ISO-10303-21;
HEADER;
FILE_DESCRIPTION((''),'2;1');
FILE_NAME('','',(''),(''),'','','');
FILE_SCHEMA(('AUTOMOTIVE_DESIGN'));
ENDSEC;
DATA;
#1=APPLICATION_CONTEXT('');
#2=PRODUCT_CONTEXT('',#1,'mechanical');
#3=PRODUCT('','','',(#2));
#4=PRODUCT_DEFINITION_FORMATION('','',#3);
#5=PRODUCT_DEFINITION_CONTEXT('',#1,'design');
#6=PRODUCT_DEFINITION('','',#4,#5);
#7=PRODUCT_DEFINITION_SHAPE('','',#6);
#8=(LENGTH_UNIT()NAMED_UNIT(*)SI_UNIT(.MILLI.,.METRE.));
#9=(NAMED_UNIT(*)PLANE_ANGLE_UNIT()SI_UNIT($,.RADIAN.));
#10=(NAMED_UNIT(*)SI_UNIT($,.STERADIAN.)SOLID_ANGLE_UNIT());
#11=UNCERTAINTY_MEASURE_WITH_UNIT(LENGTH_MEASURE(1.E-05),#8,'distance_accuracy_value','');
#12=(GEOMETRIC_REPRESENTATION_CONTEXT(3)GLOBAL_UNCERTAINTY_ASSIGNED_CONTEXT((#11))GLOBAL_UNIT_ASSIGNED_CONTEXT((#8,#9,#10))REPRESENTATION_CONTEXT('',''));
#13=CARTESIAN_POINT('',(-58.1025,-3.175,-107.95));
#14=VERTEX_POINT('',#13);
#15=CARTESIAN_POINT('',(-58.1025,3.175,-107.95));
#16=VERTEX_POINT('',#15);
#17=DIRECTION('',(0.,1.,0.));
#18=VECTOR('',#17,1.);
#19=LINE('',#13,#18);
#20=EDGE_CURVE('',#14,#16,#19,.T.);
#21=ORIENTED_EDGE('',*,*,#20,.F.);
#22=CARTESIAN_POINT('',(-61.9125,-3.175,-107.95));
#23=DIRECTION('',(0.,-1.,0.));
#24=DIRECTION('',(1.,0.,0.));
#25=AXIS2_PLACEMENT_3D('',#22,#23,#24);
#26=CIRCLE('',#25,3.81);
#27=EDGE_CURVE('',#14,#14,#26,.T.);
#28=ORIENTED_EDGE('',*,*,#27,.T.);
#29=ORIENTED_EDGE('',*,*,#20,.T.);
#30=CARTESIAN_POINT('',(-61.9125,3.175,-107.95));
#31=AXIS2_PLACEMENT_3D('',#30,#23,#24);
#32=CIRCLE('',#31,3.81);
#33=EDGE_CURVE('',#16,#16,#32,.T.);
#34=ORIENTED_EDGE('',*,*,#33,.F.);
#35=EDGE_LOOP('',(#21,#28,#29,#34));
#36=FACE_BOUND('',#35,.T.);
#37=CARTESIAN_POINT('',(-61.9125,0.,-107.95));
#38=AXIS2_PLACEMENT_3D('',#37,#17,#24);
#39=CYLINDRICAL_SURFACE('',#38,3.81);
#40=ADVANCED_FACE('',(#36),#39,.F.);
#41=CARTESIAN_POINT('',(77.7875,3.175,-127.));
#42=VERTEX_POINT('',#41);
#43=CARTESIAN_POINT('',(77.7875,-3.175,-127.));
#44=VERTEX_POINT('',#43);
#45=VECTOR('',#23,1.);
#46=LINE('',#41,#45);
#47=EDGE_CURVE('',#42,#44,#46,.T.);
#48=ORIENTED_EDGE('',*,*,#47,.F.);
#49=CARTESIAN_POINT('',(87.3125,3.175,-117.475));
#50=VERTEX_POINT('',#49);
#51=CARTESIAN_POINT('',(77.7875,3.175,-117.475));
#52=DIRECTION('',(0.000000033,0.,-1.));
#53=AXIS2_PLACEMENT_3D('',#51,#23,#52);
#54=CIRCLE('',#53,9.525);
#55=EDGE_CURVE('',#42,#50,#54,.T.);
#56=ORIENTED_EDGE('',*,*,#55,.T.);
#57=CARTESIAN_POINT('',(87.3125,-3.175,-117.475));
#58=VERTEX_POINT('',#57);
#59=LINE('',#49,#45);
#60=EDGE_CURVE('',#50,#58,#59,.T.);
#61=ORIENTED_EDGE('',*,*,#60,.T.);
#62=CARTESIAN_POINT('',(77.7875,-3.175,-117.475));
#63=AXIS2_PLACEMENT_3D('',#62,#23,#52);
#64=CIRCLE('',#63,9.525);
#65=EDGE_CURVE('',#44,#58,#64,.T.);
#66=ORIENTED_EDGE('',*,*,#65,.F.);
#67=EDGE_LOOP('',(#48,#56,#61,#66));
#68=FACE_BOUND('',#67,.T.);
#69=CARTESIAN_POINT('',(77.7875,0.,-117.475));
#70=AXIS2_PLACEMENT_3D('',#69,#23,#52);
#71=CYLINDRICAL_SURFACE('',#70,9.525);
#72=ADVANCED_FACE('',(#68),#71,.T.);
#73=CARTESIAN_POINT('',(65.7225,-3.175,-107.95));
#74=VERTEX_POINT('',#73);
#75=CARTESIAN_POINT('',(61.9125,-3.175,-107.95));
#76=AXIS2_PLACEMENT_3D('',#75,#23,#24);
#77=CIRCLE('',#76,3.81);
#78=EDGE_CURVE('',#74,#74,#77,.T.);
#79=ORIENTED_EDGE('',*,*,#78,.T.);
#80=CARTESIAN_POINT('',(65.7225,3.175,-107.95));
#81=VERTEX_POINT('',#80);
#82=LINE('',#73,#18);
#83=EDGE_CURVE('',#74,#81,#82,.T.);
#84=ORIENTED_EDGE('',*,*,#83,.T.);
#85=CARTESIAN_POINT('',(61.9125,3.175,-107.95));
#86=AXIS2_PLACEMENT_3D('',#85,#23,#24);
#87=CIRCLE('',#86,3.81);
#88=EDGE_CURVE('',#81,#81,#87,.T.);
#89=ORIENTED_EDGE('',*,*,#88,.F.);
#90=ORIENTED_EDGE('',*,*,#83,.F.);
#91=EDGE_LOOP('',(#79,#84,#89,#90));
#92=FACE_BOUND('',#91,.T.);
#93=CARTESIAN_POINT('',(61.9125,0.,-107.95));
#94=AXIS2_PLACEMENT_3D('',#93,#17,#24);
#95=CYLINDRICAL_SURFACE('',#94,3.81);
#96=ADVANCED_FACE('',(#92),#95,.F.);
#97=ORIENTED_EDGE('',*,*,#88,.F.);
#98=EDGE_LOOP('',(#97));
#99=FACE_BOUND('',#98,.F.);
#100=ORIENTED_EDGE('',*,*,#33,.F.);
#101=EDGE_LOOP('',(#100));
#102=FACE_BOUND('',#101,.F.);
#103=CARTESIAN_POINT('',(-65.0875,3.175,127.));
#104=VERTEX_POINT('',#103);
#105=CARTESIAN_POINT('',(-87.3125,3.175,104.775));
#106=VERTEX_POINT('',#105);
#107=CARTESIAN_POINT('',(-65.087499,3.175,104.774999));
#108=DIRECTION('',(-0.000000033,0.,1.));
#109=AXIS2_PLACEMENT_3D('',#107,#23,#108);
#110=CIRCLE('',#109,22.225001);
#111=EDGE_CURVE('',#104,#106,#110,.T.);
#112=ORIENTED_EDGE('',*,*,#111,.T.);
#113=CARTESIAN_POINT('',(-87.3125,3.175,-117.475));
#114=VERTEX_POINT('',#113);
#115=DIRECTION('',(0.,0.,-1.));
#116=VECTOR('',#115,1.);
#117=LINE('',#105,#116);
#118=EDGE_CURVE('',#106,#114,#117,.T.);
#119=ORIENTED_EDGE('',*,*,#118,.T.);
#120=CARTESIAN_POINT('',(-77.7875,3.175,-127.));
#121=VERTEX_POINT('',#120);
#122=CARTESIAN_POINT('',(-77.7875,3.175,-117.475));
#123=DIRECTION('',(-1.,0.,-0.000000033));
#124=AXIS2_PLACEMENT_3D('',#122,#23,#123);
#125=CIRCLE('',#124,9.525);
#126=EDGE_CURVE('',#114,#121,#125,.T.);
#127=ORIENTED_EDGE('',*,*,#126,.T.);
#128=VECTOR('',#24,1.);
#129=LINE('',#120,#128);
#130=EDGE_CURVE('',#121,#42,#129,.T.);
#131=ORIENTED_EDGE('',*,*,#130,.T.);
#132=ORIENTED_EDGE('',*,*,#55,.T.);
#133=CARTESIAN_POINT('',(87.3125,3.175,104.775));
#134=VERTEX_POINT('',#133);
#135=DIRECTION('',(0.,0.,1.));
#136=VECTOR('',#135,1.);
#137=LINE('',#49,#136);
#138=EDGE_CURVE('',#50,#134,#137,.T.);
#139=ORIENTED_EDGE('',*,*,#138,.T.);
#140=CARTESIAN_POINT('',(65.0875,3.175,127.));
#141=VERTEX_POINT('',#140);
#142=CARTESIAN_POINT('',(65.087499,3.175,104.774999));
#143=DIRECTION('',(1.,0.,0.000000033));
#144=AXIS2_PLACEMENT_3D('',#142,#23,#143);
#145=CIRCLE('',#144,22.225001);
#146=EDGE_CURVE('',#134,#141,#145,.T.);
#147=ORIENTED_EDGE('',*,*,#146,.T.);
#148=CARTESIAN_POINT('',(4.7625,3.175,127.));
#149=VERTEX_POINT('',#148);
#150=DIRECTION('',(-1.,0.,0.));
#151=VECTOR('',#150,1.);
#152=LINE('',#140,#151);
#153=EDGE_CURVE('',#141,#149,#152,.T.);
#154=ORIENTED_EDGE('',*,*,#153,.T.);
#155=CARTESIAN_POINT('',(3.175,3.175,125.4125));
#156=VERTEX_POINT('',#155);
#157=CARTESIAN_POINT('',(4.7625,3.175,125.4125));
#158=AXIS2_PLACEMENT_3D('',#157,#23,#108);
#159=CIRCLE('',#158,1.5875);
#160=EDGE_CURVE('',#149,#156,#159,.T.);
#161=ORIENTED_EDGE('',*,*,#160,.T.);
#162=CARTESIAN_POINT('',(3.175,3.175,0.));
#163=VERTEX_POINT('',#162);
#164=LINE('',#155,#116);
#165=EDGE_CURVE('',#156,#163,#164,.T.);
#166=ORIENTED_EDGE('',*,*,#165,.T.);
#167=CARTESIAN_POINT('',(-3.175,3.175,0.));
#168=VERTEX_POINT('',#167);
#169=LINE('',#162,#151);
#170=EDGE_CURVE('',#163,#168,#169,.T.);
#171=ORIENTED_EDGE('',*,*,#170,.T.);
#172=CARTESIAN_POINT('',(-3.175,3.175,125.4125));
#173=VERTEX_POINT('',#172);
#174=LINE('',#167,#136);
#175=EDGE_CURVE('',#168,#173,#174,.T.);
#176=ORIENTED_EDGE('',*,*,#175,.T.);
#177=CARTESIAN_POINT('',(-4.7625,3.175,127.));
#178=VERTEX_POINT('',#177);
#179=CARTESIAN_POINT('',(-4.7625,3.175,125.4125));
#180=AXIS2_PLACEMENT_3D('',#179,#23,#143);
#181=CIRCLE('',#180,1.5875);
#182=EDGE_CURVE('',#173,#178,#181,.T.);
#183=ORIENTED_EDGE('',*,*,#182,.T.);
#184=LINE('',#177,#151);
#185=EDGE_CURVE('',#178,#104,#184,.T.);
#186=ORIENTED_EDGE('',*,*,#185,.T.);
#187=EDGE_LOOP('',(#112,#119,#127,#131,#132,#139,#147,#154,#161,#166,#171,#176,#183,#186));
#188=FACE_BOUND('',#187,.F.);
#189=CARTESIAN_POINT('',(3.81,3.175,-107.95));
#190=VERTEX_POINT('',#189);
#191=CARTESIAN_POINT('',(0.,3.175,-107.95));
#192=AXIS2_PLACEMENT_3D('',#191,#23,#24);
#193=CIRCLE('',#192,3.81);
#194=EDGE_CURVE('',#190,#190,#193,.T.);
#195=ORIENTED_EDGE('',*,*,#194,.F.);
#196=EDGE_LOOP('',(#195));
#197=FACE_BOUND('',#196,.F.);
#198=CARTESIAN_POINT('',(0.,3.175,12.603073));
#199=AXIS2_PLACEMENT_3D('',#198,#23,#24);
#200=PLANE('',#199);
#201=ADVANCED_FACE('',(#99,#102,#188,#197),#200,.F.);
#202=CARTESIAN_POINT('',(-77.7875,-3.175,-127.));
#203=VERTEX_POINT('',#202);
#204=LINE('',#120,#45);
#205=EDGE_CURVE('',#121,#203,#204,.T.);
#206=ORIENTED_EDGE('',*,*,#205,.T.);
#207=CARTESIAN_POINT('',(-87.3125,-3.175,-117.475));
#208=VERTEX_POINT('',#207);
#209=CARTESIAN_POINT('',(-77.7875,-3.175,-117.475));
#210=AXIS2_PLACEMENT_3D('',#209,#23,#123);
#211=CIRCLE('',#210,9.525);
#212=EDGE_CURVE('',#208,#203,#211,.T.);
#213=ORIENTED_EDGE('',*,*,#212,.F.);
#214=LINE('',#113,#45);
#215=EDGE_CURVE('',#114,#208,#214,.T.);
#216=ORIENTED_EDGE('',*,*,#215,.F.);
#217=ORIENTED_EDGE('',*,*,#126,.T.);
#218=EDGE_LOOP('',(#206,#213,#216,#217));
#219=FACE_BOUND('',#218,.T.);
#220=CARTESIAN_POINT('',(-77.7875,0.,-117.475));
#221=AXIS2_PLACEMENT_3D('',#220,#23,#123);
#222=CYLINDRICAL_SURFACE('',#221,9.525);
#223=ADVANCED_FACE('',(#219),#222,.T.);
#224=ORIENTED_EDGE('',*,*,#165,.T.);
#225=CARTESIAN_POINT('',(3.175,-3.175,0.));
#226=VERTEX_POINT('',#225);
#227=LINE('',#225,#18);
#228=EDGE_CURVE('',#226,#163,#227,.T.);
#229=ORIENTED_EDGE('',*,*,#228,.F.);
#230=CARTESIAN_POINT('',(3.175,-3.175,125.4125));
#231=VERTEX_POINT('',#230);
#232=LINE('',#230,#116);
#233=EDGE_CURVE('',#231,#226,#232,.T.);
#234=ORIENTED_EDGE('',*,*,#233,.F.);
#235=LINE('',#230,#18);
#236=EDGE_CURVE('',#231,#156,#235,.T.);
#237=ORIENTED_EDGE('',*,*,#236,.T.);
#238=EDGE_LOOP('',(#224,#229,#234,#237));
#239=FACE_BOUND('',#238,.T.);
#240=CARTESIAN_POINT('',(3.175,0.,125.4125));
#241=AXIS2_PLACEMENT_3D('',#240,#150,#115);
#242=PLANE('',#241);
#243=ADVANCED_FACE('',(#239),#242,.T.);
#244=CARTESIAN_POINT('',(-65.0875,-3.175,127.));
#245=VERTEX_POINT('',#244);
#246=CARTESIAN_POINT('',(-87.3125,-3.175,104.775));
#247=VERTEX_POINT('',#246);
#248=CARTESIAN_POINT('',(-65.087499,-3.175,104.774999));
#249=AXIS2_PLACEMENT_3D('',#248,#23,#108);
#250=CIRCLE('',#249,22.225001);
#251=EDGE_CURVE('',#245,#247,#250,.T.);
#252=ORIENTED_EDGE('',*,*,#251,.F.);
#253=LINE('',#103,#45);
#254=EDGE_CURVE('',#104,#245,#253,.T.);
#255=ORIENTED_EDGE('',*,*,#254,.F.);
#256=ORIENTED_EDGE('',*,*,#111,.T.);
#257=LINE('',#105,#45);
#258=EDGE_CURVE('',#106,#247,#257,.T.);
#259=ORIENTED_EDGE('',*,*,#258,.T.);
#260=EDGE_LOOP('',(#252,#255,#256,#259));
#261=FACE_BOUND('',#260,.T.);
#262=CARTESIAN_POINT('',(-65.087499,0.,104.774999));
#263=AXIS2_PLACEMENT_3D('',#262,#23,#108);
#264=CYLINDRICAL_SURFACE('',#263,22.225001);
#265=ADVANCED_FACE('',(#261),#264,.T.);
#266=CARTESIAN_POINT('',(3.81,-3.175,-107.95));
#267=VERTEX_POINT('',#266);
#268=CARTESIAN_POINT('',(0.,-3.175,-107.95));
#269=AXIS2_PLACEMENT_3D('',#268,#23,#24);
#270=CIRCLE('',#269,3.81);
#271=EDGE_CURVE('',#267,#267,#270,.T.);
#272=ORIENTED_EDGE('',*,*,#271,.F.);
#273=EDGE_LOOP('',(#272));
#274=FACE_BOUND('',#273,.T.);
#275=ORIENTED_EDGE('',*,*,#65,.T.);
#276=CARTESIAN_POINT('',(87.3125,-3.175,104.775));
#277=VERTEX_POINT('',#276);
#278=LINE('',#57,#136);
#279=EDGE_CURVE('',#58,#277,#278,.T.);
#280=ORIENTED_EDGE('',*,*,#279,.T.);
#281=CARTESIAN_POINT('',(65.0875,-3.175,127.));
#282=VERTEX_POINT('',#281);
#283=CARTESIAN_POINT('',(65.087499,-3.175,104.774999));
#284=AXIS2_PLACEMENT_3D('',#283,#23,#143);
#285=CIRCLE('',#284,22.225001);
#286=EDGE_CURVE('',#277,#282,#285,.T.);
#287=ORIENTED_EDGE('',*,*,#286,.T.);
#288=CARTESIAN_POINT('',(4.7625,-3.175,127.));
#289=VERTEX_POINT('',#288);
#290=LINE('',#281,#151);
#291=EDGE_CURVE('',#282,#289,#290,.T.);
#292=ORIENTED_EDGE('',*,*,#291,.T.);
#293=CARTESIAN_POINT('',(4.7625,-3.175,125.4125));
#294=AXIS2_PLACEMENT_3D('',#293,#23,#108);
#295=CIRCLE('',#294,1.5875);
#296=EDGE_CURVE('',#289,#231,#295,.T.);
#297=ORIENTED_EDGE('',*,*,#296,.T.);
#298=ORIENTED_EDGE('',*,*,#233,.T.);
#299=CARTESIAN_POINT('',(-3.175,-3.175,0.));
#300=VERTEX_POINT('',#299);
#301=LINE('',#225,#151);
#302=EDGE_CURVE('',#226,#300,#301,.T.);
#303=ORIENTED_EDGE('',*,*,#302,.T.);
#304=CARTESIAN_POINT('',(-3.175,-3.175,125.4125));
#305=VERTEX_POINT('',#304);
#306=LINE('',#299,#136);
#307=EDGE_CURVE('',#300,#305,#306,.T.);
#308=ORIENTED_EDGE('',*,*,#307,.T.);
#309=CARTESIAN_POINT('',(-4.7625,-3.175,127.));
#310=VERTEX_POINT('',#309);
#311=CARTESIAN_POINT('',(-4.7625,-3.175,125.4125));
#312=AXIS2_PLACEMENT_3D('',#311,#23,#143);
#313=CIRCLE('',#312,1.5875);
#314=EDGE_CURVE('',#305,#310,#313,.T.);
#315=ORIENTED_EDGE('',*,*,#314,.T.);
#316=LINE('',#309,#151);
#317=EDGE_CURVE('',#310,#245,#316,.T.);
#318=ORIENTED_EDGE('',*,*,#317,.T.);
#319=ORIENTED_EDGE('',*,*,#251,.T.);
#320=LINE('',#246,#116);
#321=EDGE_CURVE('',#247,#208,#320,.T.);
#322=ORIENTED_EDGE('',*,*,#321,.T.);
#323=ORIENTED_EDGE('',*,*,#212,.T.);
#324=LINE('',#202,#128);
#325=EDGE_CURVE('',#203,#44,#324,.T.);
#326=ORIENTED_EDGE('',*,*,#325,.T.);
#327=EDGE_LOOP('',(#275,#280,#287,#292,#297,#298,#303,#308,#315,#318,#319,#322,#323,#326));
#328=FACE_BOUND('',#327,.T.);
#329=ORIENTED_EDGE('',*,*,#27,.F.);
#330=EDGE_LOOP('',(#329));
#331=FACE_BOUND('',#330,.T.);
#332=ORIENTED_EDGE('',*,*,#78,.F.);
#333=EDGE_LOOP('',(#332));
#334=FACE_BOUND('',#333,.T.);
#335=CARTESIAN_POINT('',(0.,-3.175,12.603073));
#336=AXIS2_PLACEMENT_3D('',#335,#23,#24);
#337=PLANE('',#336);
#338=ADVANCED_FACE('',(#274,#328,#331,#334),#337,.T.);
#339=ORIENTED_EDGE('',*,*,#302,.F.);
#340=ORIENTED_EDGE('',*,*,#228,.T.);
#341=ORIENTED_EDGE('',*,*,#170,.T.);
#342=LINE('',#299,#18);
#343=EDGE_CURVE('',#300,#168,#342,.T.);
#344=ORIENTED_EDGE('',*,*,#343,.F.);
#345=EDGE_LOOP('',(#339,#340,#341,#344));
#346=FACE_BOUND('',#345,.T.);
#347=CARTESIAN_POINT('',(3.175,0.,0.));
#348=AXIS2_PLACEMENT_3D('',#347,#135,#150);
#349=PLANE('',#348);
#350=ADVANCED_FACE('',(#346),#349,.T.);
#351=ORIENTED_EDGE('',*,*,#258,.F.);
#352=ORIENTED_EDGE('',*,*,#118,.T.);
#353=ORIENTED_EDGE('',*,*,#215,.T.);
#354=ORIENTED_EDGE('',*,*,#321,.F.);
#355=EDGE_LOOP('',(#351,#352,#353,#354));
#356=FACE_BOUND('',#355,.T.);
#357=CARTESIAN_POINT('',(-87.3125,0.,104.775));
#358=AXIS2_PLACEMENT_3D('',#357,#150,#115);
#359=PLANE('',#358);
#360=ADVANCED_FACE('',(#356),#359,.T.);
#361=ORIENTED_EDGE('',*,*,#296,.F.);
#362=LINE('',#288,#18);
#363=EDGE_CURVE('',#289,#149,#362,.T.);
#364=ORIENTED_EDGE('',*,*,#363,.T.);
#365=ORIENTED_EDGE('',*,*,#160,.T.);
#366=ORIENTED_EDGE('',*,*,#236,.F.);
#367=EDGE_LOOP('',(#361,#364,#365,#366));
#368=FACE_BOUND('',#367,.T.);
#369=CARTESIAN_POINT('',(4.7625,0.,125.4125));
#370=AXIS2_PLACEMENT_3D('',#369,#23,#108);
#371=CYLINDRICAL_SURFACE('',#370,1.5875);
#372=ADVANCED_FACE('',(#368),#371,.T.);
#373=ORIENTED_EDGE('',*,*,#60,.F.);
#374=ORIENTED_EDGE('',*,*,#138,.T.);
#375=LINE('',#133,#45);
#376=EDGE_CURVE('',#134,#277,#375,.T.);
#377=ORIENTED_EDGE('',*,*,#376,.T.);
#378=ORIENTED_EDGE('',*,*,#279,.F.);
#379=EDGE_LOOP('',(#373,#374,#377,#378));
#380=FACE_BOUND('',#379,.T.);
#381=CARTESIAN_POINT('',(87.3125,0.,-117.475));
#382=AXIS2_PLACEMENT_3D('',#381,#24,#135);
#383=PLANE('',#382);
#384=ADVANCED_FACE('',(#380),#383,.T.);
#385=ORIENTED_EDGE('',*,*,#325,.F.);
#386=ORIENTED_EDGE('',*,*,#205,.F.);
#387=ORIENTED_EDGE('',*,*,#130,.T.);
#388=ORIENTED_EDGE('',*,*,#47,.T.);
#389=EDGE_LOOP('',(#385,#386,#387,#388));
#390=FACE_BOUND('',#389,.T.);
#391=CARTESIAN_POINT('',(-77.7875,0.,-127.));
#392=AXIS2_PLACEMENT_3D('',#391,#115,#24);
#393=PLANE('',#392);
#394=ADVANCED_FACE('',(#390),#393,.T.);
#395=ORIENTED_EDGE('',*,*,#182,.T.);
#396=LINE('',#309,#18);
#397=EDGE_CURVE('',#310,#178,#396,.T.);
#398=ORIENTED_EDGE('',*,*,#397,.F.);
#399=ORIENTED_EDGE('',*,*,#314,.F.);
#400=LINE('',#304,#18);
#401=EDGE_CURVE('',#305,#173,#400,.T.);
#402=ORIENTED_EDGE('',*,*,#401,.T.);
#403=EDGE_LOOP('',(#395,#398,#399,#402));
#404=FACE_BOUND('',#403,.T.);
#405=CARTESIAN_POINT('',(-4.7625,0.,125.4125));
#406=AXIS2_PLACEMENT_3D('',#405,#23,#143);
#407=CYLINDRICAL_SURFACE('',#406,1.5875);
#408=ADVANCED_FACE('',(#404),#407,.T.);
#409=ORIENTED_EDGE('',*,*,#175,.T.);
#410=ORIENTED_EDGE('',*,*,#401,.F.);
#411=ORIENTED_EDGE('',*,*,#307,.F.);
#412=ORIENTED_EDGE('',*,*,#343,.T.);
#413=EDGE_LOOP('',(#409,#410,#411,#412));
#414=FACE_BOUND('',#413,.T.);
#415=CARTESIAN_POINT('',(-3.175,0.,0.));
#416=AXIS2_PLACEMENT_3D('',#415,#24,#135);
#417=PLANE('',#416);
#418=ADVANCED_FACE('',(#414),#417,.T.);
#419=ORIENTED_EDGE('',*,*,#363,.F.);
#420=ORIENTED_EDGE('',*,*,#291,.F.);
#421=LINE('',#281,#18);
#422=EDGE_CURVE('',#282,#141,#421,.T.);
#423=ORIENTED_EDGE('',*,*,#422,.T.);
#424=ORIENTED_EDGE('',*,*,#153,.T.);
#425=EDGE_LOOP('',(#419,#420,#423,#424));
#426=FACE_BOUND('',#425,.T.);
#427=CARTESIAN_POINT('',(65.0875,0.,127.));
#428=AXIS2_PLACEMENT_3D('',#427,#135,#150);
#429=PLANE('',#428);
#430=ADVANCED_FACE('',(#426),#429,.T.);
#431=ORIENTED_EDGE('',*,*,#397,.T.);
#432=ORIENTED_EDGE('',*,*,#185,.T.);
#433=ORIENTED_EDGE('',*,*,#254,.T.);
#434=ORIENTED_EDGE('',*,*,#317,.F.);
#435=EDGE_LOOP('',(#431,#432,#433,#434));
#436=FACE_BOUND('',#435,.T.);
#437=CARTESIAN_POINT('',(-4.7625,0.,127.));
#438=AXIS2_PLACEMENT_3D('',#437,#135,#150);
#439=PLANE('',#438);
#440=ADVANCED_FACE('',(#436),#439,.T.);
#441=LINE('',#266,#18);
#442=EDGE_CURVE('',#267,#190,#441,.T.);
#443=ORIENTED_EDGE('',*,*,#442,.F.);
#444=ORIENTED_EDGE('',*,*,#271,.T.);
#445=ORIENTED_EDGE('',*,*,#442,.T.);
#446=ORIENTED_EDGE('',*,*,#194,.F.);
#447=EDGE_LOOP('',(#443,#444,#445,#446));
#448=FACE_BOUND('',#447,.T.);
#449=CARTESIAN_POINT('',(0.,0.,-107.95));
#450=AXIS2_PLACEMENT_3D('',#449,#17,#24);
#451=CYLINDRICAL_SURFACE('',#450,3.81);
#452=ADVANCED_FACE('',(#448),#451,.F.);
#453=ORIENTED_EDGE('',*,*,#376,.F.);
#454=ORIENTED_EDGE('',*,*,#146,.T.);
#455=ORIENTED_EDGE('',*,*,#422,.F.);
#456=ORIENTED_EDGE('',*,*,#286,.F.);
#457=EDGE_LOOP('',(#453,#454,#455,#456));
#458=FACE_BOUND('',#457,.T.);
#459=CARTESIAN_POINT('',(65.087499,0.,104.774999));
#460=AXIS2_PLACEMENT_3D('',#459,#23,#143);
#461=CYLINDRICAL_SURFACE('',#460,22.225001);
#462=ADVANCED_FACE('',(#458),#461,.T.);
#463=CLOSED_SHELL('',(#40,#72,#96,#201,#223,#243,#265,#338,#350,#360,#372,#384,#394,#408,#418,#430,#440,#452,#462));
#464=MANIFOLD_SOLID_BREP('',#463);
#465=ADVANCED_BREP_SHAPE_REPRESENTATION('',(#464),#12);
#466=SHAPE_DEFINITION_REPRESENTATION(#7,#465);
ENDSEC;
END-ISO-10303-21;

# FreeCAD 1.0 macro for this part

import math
import FreeCAD as App
import Part
import Sketcher

V = App.Vector
Q = App.Units.Quantity

doc = App.newDocument("Part")
body = doc.addObject("PartDesign::Body", "Body")

# Sketch on XZ plane
sketch1 = body.newObject("Sketcher::SketchObject", "Sketch")
sketch1.AttachmentSupport = (doc.getObject("XZ_Plane"), [""])
sketch1.MapMode = "FlatFace"
sketch1.addGeometry([
    Part.LineSegment(V(-4.8, 127, 0), V(-65.1, 127, 0)),  # 0
    Part.ArcOfCircle(Part.Circle(V(-65.1, 104.8, 0), V(0, 0, 1), 22.2), math.radians(90), math.radians(180)),  # 1
    Part.LineSegment(V(-87.3, 104.8, 0), V(-87.3, -117.5, 0)),  # 2
    Part.ArcOfCircle(Part.Circle(V(-77.8, -117.5, 0), V(0, 0, 1), 9.5), math.radians(-180), math.radians(-90)),  # 3
    Part.LineSegment(V(-77.8, -127, 0), V(77.8, -127, 0)),  # 4
    Part.ArcOfCircle(Part.Circle(V(77.8, -117.5, 0), V(0, 0, 1), 9.5), math.radians(-90), math.radians(0)),  # 5
    Part.LineSegment(V(87.3, -117.5, 0), V(87.3, 104.8, 0)),  # 6
    Part.ArcOfCircle(Part.Circle(V(65.1, 104.8, 0), V(0, 0, 1), 22.2), math.radians(0), math.radians(90)),  # 7
    Part.LineSegment(V(65.1, 127, 0), V(4.8, 127, 0)),  # 8
    Part.ArcOfCircle(Part.Circle(V(4.8, 125.4, 0), V(0, 0, 1), 1.6), math.radians(90), math.radians(180)),  # 9
    Part.LineSegment(V(3.2, 125.4, 0), V(3.2, 0, 0)),  # 10
    Part.LineSegment(V(3.2, 0, 0), V(-3.2, 0, 0)),  # 11
    Part.LineSegment(V(-3.2, 0, 0), V(-3.2, 125.4, 0)),  # 12
    Part.ArcOfCircle(Part.Circle(V(-4.8, 125.4, 0), V(0, 0, 1), 1.6), math.radians(0), math.radians(90)),  # 13
    Part.Circle(V(-61.9, -108, 0), V(0, 0, 1), 3.8),  # 14
    Part.Circle(V(0, -108, 0), V(0, 0, 1), 3.8),  # 15
    Part.Circle(V(61.9, -108, 0), V(0, 0, 1), 3.8),  # 16
], False)
sketch1.addConstraint([
    Sketcher.Constraint("Tangent", 0, 2, 1, 1),
    Sketcher.Constraint("Tangent", 1, 2, 2, 1),
    Sketcher.Constraint("Tangent", 2, 2, 3, 1),
    Sketcher.Constraint("Tangent", 3, 2, 4, 1),
    Sketcher.Constraint("Tangent", 4, 2, 5, 1),
    Sketcher.Constraint("Tangent", 5, 2, 6, 1),
    Sketcher.Constraint("Tangent", 6, 2, 7, 1),
    Sketcher.Constraint("Tangent", 7, 2, 8, 1),
    Sketcher.Constraint("Tangent", 8, 2, 9, 1),
    Sketcher.Constraint("Tangent", 9, 2, 10, 1),
    Sketcher.Constraint("Coincident", 10, 2, 11, 1),
    Sketcher.Constraint("Coincident", 11, 2, 12, 1),
    Sketcher.Constraint("Tangent", 12, 2, 13, 1),
    Sketcher.Constraint("Tangent", 13, 2, 0, 1),
    Sketcher.Constraint("Horizontal", 0),
    Sketcher.Constraint("Vertical", 2),
    Sketcher.Constraint("Horizontal", 4),
    Sketcher.Constraint("Vertical", 6),
    Sketcher.Constraint("Horizontal", 8),
    Sketcher.Constraint("Vertical", 10),
    Sketcher.Constraint("Horizontal", 11),
    Sketcher.Constraint("Vertical", 12),
    Sketcher.Constraint("Equal", 3, 5),
    Sketcher.Constraint("Equal", 1, 7),
    Sketcher.Constraint("Equal", 9, 13),
    Sketcher.Constraint("Equal", 14, 15),
    Sketcher.Constraint("Equal", 15, 16),
    Sketcher.Constraint("Symmetric", 10, 2, 11, 2, -1, 1),
    Sketcher.Constraint("Symmetric", 1, 3, 7, 3, -2),
    Sketcher.Constraint("Symmetric", 14, 3, 16, 3, -2),
    Sketcher.Constraint("PointOnObject", 15, 3, -2),
    Sketcher.Constraint("Horizontal", 14, 3, 15, 3),
    Sketcher.Constraint("Diameter", 14, Q("0.3 in")),
    Sketcher.Constraint("DistanceY", -1, 1, 0, 2, Q("5 in")),
    Sketcher.Constraint("DistanceY", 3, 2, -1, 1, Q("5 in")),
    Sketcher.Constraint("Radius", 1, Q("0.875 in")),
    Sketcher.Constraint("Radius", 3, Q("0.375 in")),
    Sketcher.Constraint("Radius", 9, Q("0.0625 in")),
    Sketcher.Constraint("DistanceX", 1, 2, 7, 3, Q("6 in")),
    Sketcher.Constraint("DistanceX", 2, 2, 14, 3, Q("1 in")),
    Sketcher.Constraint("DistanceX", 11, 2, 11, 1, Q("0.25 in")),
    Sketcher.Constraint("DistanceY", 14, 3, -1, 1, Q("4.25 in")),
])
pad1 = body.newObject("PartDesign::Pad", "Pad")
pad1.Profile = sketch1
pad1.Length = Q("0.25 in")
pad1.Midplane = True

doc.recompute()
